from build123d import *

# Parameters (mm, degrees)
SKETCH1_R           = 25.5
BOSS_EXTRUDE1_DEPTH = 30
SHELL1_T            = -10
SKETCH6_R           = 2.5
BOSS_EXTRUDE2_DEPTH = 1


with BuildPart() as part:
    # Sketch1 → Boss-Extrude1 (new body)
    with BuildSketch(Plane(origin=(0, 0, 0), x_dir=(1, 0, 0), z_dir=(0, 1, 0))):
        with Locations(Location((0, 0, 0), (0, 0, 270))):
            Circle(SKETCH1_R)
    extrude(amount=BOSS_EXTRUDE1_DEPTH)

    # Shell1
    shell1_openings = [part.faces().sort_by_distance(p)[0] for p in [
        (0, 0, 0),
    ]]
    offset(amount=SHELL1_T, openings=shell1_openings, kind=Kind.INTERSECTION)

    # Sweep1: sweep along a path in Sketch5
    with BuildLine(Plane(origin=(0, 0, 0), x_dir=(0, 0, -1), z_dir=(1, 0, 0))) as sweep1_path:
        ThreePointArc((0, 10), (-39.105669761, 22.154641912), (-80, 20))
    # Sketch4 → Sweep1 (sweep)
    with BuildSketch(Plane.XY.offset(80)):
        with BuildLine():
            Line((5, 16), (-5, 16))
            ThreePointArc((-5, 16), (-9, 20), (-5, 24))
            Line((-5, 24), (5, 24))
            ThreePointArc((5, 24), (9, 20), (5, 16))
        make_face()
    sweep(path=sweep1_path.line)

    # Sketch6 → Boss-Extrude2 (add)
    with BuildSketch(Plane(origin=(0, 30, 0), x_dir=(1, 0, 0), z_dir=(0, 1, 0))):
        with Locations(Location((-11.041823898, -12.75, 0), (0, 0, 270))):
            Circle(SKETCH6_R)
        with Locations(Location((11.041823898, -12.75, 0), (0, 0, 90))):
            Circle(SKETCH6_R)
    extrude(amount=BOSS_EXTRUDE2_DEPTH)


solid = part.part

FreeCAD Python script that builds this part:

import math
import FreeCAD as App
import Part
import Sketcher
from FreeCAD import Vector
Q = App.Units.Quantity


def faces_at(feature, points):
    """Names of the faces that lie closest to the given points."""
    faces = feature.Shape.Faces
    near = lambda p: min(range(len(faces)), key=lambda i: faces[i].distToShape(Part.Vertex(*p))[0])
    return sorted({f"Face{near(p) + 1}" for p in points})

doc = App.newDocument("Part")
body = doc.addObject("PartDesign::Body", "Body")

# Sketch on XZ plane
sketch1 = body.newObject("Sketcher::SketchObject", "Sketch")
sketch1.AttachmentSupport = (doc.getObject("XZ_Plane"), [""])
sketch1.MapMode = "FlatFace"
sketch1.addGeometry(Part.Circle(Vector(0, 0, 0), Vector(0, 0, 1), 25.5), False)
sketch1.addConstraint([
    Sketcher.Constraint("Coincident", 0, 3, -1, 1),
    Sketcher.Constraint("Diameter", 0, Q("51 mm")),
])
pad1 = body.newObject("PartDesign::Pad", "Pad")
pad1.Profile = sketch1
pad1.Length = 30
pad1.Reversed = True
doc.recompute()

thickness = body.newObject("PartDesign::Thickness", "Thickness")
thickness.Base = (pad1, faces_at(pad1, [(0, 0, 0)]))
thickness.Value = 10
thickness.Reversed = True
thickness.Join = "Intersection"

# Sketch on XY plane
sketch2 = body.newObject("Sketcher::SketchObject", "Sketch001")
sketch2.AttachmentSupport = (doc.getObject("XY_Plane"), [""])
sketch2.MapMode = "FlatFace"
sketch2.AttachmentOffset = App.Placement(Vector(0, 0, 80), App.Rotation())
sketch2.addGeometry([
    Part.LineSegment(Vector(-5, 16, 0), Vector(5, 16, 0)),
    Part.ArcOfCircle(Part.Circle(Vector(5, 20, 0), Vector(0, 0, 1), 4), math.radians(-90), math.radians(90)),
    Part.LineSegment(Vector(5, 24, 0), Vector(-5, 24, 0)),
    Part.ArcOfCircle(Part.Circle(Vector(-5, 20, 0), Vector(0, 0, 1), 4), math.radians(90), math.radians(270)),
], False)
sketch2.addConstraint([
    Sketcher.Constraint("Tangent", 0, 2, 1, 1),
    Sketcher.Constraint("Tangent", 1, 2, 2, 1),
    Sketcher.Constraint("Tangent", 2, 2, 3, 1),
    Sketcher.Constraint("Tangent", 3, 2, 0, 1),
    Sketcher.Constraint("Horizontal", 0),
    Sketcher.Constraint("Horizontal", 2),
    Sketcher.Constraint("Radius", 1, Q("4 mm")),
    Sketcher.Constraint("DistanceX", 0, 1, 0, 2, Q("10 mm")),
    Sketcher.Constraint("DistanceX", -1, 1, 1, 3, Q("5 mm")),
    Sketcher.Constraint("DistanceY", -1, 1, 1, 3, Q("20 mm")),
])

# Sketch on YZ plane
sketch3 = body.newObject("Sketcher::SketchObject", "Sketch002")
sketch3.AttachmentSupport = (doc.getObject("YZ_Plane"), [""])
sketch3.MapMode = "FlatFace"
sketch3.addGeometry(Part.ArcOfCircle(Part.Circle(Vector(-93.238198, 53.529775, 0), Vector(0, 0, 1), 116.290852), math.radians(-27.407076), math.radians(13.157043)), False)
sketch3.addConstraint([
    Sketcher.Constraint("PointOnObject", 0, 1, -1),
    Sketcher.Constraint("DistanceX", -1, 1, 0, 1, Q("10 mm")),
    Sketcher.Constraint("DistanceX", -1, 1, 0, 2, Q("20 mm")),
    Sketcher.Constraint("DistanceY", -1, 1, 0, 2, Q("80 mm")),
    Sketcher.Constraint("Radius", 0, Q("116.290852 mm")),
])
doc.recompute()

additivepipe = body.newObject("PartDesign::AdditivePipe", "AdditivePipe")
additivepipe.Profile = sketch2
additivepipe.Spine = (sketch3, ["Edge1"])

# Sketch on XZ plane
sketch4 = body.newObject("Sketcher::SketchObject", "Sketch003")
sketch4.AttachmentSupport = (doc.getObject("XZ_Plane"), [""])
sketch4.MapMode = "FlatFace"
sketch4.AttachmentOffset = App.Placement(Vector(0, 0, -30), App.Rotation())
sketch4.addGeometry([
    Part.Circle(Vector(-11.041824, 12.75, 0), Vector(0, 0, 1), 2.5),
    Part.Circle(Vector(11.041824, 12.75, 0), Vector(0, 0, 1), 2.5),
], False)
sketch4.addConstraint([
    Sketcher.Constraint("Equal", 0, 1),
    Sketcher.Constraint("Symmetric", 0, 3, 1, 3, -2),
    Sketcher.Constraint("Diameter", 0, Q("5 mm")),
    Sketcher.Constraint("DistanceY", -1, 1, 0, 3, Q("12.75 mm")),
    Sketcher.Constraint("DistanceX", 0, 3, -1, 1, Q("11.041824 mm")),
])
pad2 = body.newObject("PartDesign::Pad", "Pad001")
pad2.Profile = sketch4
pad2.Length = 1
pad2.Reversed = True

doc.recompute()
